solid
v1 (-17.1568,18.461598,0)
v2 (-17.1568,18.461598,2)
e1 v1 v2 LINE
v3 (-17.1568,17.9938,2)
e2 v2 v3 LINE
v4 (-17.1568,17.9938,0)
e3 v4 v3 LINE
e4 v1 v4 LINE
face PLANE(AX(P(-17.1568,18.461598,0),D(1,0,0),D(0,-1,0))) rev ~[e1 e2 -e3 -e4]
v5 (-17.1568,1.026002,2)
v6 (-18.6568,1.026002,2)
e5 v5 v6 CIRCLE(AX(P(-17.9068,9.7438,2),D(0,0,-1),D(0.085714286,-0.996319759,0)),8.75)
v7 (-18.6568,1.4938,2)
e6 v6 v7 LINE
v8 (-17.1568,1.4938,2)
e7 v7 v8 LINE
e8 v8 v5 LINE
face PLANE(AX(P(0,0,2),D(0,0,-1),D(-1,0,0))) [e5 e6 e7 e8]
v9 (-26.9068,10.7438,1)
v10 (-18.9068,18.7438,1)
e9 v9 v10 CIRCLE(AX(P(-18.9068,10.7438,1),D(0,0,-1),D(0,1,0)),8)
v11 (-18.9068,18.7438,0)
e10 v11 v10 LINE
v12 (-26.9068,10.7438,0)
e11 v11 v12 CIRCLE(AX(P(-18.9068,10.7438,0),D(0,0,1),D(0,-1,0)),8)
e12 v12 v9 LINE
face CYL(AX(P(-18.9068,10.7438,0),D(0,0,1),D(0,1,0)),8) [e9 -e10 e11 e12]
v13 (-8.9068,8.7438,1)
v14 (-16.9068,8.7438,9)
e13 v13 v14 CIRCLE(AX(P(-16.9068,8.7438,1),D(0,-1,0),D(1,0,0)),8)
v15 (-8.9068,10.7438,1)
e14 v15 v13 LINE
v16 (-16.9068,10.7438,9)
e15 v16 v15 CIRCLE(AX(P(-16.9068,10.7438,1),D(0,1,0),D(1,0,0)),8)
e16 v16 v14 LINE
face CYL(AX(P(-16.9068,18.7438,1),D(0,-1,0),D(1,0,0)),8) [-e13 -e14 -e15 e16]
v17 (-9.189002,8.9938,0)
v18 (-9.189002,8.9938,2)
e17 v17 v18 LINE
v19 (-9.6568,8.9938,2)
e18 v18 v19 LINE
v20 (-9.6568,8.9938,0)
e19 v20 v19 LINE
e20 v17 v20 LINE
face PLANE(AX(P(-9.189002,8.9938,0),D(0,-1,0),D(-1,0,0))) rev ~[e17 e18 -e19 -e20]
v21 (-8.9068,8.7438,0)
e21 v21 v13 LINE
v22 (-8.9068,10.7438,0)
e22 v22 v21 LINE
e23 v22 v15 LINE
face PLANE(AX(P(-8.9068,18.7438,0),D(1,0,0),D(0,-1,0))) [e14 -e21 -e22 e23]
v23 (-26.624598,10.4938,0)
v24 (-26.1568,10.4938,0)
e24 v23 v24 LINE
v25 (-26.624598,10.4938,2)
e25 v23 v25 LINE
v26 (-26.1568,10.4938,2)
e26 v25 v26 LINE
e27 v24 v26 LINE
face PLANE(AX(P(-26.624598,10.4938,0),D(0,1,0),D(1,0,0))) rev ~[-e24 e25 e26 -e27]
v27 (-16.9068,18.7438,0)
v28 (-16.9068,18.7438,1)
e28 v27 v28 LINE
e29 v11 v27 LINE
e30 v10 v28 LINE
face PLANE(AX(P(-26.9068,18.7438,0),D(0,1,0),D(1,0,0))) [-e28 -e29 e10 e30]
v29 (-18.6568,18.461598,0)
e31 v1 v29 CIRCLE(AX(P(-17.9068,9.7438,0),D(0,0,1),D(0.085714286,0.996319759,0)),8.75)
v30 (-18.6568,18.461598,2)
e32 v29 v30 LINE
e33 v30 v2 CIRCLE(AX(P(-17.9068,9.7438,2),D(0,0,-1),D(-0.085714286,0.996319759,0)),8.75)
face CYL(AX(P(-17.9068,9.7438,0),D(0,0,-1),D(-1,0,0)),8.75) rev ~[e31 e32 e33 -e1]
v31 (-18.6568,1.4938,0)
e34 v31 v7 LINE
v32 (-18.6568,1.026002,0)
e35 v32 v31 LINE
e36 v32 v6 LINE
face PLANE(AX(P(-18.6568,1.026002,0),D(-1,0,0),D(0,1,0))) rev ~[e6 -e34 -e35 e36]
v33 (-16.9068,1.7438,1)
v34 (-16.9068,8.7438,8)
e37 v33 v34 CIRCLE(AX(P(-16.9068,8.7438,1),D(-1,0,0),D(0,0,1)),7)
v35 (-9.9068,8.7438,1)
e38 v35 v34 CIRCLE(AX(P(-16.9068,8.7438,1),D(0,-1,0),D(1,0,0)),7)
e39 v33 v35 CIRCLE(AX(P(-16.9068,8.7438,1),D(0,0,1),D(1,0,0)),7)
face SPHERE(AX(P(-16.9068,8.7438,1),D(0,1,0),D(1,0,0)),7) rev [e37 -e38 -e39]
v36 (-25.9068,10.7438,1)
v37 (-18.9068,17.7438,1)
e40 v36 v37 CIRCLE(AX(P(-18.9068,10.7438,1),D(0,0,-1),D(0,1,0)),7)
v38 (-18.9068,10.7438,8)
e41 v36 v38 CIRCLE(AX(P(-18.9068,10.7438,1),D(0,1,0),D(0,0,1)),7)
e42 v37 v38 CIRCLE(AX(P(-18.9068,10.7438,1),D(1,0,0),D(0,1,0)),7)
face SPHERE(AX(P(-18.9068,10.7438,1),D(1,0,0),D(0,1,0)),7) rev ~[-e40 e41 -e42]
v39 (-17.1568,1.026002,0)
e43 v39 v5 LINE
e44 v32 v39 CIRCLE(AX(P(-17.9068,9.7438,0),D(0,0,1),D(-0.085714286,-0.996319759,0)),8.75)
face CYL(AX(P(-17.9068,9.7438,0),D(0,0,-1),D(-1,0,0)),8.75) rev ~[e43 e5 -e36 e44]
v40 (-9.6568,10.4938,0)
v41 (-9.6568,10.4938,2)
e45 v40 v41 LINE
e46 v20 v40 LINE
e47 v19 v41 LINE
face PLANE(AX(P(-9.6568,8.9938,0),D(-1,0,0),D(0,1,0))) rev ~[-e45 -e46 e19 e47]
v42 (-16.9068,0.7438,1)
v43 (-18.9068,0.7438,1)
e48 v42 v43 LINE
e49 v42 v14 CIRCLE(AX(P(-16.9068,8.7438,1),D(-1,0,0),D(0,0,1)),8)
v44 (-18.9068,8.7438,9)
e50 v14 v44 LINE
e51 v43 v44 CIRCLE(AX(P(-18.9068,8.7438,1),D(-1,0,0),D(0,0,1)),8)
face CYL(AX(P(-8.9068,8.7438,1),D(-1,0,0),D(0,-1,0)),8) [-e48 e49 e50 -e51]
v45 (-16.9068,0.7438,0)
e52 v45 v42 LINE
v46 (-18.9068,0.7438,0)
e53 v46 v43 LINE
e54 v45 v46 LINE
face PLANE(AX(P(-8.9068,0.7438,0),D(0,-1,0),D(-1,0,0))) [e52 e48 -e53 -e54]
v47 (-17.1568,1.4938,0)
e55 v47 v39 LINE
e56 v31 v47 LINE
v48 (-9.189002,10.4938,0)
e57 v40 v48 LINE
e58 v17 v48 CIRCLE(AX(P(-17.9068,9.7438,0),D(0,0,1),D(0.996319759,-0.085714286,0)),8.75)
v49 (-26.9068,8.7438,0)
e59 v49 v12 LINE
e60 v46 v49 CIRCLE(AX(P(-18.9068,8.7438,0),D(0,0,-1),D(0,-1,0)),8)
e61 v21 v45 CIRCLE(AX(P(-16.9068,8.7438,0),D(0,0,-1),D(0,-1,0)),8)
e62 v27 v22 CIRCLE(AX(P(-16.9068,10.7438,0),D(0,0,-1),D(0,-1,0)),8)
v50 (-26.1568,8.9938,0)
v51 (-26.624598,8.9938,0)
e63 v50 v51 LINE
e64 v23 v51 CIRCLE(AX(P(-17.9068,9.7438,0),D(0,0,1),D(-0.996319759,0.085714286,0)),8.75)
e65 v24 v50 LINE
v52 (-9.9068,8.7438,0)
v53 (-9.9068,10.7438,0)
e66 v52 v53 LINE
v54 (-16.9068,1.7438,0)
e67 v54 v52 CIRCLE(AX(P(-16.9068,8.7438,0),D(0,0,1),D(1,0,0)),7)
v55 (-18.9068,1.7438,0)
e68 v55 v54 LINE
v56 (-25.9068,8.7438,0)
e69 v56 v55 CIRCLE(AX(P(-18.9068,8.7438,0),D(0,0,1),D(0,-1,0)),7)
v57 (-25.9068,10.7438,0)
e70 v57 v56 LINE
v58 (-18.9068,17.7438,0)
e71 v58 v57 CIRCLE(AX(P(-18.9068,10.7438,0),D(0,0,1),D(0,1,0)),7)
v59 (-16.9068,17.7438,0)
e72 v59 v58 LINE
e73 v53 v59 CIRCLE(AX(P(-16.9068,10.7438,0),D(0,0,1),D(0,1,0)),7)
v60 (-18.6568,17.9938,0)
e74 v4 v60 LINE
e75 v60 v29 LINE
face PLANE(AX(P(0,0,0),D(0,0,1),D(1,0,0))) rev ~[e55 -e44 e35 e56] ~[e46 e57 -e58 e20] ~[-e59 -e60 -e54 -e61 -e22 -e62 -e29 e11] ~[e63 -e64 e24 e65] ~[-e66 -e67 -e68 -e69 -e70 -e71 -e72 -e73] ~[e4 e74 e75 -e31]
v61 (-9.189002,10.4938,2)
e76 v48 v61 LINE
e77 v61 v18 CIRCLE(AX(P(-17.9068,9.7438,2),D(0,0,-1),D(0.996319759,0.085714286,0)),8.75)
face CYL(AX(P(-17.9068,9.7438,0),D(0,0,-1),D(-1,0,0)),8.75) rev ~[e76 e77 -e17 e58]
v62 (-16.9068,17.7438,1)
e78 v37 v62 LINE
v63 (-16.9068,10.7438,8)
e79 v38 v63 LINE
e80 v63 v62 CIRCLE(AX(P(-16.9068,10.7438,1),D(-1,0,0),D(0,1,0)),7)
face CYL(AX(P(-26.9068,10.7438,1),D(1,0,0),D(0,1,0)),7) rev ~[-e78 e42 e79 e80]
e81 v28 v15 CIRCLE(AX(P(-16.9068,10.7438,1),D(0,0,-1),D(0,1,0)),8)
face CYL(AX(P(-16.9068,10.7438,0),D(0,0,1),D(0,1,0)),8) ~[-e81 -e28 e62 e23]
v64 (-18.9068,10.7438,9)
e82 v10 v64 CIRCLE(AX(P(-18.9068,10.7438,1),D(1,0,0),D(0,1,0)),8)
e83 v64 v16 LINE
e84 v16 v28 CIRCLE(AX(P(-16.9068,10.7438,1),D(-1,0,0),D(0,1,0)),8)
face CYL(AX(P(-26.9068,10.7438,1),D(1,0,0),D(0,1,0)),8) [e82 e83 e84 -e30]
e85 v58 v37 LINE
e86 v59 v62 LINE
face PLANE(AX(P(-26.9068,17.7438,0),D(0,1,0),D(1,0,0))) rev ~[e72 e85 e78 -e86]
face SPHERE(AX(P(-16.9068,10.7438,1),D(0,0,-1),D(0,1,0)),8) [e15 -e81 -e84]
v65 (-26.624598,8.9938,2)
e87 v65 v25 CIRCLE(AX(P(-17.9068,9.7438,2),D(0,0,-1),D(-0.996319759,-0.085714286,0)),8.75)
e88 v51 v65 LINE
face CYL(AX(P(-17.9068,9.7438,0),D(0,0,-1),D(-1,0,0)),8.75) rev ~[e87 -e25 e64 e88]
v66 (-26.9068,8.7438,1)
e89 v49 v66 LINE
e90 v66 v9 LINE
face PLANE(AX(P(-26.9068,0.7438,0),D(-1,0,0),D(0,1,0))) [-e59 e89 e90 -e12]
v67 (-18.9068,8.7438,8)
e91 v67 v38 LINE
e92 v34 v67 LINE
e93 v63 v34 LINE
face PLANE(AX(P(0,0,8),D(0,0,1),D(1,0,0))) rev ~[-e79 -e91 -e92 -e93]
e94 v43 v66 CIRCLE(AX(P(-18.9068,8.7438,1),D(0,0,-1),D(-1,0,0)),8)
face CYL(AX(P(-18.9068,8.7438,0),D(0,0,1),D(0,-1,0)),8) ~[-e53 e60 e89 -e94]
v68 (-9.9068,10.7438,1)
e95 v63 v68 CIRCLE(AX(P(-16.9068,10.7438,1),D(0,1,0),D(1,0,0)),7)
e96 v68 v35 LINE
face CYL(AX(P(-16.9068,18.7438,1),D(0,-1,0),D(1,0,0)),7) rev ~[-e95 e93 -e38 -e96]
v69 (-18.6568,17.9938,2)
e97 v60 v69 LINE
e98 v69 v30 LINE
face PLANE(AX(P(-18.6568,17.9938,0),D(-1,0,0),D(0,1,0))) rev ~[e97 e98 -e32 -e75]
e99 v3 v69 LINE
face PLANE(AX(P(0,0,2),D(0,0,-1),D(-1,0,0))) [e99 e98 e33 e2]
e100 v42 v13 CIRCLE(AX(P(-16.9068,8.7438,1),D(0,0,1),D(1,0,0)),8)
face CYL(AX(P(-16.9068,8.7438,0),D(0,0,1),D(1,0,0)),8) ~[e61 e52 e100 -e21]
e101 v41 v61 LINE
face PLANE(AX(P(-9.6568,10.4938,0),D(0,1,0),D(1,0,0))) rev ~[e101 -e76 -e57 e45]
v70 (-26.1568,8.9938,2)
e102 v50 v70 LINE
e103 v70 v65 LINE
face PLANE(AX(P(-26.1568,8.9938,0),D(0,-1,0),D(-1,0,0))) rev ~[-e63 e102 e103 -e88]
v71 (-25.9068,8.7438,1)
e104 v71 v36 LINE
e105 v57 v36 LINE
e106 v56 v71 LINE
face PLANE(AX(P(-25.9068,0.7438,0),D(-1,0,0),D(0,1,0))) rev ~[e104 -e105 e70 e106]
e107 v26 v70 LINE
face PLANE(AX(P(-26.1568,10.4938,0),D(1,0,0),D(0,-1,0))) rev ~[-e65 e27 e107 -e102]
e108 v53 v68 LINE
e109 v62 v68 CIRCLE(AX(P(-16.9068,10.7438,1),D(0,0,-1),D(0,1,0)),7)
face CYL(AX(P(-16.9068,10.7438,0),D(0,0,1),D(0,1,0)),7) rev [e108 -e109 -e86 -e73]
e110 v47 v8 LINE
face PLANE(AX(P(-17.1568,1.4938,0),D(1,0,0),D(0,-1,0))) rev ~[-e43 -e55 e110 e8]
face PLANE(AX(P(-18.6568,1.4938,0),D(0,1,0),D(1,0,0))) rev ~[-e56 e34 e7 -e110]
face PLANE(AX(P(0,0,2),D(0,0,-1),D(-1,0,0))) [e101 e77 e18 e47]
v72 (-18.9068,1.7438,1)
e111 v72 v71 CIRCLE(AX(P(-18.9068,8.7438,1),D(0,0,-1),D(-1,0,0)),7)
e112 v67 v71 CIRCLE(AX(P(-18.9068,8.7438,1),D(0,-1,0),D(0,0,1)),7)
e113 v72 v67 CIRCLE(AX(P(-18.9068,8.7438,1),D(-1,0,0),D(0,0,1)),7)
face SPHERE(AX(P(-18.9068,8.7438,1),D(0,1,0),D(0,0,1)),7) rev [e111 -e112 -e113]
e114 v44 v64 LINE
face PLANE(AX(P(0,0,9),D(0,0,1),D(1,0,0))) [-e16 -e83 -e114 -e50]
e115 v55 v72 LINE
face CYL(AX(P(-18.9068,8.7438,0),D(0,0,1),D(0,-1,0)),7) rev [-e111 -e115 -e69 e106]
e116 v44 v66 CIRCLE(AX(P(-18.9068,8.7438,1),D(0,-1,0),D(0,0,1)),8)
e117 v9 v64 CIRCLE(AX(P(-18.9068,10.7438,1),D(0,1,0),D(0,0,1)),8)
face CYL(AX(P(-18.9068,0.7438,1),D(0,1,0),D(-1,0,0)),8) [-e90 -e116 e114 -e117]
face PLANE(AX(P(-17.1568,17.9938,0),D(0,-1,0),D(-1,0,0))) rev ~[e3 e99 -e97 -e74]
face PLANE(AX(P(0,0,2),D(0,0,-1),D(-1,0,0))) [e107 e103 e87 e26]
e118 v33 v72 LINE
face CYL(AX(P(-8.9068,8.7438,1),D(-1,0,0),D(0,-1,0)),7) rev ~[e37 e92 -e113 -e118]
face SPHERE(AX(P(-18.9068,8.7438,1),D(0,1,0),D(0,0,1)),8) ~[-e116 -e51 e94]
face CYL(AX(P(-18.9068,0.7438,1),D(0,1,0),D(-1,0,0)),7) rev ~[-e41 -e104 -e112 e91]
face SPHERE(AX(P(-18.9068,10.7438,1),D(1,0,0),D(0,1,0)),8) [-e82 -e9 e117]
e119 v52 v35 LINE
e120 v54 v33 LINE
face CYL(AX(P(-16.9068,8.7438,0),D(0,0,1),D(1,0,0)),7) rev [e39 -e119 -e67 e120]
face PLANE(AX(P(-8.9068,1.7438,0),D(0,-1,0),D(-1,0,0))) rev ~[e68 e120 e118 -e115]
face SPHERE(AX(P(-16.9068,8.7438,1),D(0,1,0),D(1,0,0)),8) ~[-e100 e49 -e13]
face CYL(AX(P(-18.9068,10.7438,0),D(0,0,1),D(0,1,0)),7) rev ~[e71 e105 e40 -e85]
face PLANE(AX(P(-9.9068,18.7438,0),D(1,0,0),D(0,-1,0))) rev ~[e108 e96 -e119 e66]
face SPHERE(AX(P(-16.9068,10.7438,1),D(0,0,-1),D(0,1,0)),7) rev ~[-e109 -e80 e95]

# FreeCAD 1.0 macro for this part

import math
import FreeCAD as App
import Part
import Sketcher
from FreeCAD import Vector


def edges_at(feature, points):
    """Names of the edges that pass closest to the given points."""
    edges = feature.Shape.Edges
    near = lambda p: min(range(len(edges)), key=lambda i: edges[i].distToShape(Part.Vertex(*p))[0])
    return sorted({f"Edge{near(p) + 1}" for p in points})


def faces_at(feature, points):
    """Names of the faces that lie closest to the given points."""
    faces = feature.Shape.Faces
    near = lambda p: min(range(len(faces)), key=lambda i: faces[i].distToShape(Part.Vertex(*p))[0])
    return sorted({f"Face{near(p) + 1}" for p in points})

doc = App.newDocument("Part")
body = doc.addObject("PartDesign::Body", "Body")

# Sketch on XY plane
sketch1 = body.newObject("Sketcher::SketchObject", "Sketch")
sketch1.AttachmentSupport = (doc.getObject("XY_Plane"), [""])
sketch1.MapMode = "FlatFace"
sketch1.addGeometry([
    Part.LineSegment(Vector(-8.9068, 18.7438, 0), Vector(-26.9068, 18.7438, 0)),
    Part.LineSegment(Vector(-26.9068, 18.7438, 0), Vector(-26.9068, 0.7438, 0)),
    Part.LineSegment(Vector(-26.9068, 0.7438, 0), Vector(-8.9068, 0.7438, 0)),
    Part.LineSegment(Vector(-8.9068, 0.7438, 0), Vector(-8.9068, 18.7438, 0)),
], False)
sketch1.addConstraint([
    Sketcher.Constraint("Coincident", 0, 2, 1, 1),
    Sketcher.Constraint("Coincident", 1, 2, 2, 1),
    Sketcher.Constraint("Coincident", 2, 2, 3, 1),
    Sketcher.Constraint("Coincident", 3, 2, 0, 1),
    Sketcher.Constraint("Horizontal", 0),
    Sketcher.Constraint("Vertical", 1),
    Sketcher.Constraint("Horizontal", 2),
    Sketcher.Constraint("Vertical", 3),
    Sketcher.Constraint("Equal", 2, 1),
    Sketcher.Constraint("DistanceX", 0, 2, 0, 1, 18.0),
    Sketcher.Constraint("DistanceX", 0, 2, -1, 1, 26.9068),
    Sketcher.Constraint("DistanceY", -1, 1, 0, 2, 18.7438),
])
pad1 = body.newObject("PartDesign::Pad", "Pad")
pad1.Profile = sketch1
pad1.Length = 9
doc.recompute()

fillet = body.newObject("PartDesign::Fillet", "Fillet")
fillet.Base = (pad1, edges_at(pad1, [
    (-8.907, 18.744, 4.5),
    (-17.907, 18.744, 9),
    (-26.907, 18.744, 4.5),
    (-26.907, 9.744, 9),
    (-8.907, 9.744, 9),
    (-8.907, 0.744, 4.5),
    (-17.907, 0.744, 9),
    (-26.907, 0.744, 4.5),
]))
fillet.Radius = 8
doc.recompute()

thickness = body.newObject("PartDesign::Thickness", "Thickness")
thickness.Base = (fillet, faces_at(fillet, [(-17.573, 12.744, 0)]))
thickness.Value = 1
thickness.Reversed = True
thickness.Join = "Intersection"

# Sketch on XY plane
sketch2 = body.newObject("Sketcher::SketchObject", "Sketch001")
sketch2.AttachmentSupport = (doc.getObject("XY_Plane"), [""])
sketch2.MapMode = "FlatFace"
sketch2.addGeometry([
    Part.ArcOfCircle(Part.Circle(Vector(-17.9068, 9.7438, 0), Vector(0, 0, 1), 8.75), math.radians(85.0829), math.radians(94.9171)),  # 0
    Part.LineSegment(Vector(-17.1568, 18.461598, 0), Vector(-17.1568, 17.9938, 0)),  # 1
    Part.LineSegment(Vector(-17.1568, 17.9938, 0), Vector(-18.6568, 17.9938, 0)),  # 2
    Part.LineSegment(Vector(-18.6568, 17.9938, 0), Vector(-18.6568, 18.461598, 0)),  # 3
    Part.LineSegment(Vector(-9.6568, 10.4938, 0), Vector(-9.189002, 10.4938, 0)),  # 4
    Part.ArcOfCircle(Part.Circle(Vector(-17.9068, 9.7438, 0), Vector(0, 0, 1), 8.75), math.radians(-4.9171), math.radians(4.9171)),  # 5
    Part.LineSegment(Vector(-9.189002, 8.9938, 0), Vector(-9.6568, 8.9938, 0)),  # 6
    Part.LineSegment(Vector(-9.6568, 8.9938, 0), Vector(-9.6568, 10.4938, 0)),  # 7
    Part.ArcOfCircle(Part.Circle(Vector(-17.9068, 9.7438, 0), Vector(0, 0, 1), 8.75), math.radians(175.0829), math.radians(184.9171)),  # 8
    Part.LineSegment(Vector(-26.624598, 10.4938, 0), Vector(-26.1568, 10.4938, 0)),  # 9
    Part.LineSegment(Vector(-26.1568, 10.4938, 0), Vector(-26.1568, 8.9938, 0)),  # 10
    Part.LineSegment(Vector(-26.1568, 8.9938, 0), Vector(-26.624598, 8.9938, 0)),  # 11
    Part.LineSegment(Vector(-17.1568, 1.4938, 0), Vector(-17.1568, 1.026002, 0)),  # 12
    Part.ArcOfCircle(Part.Circle(Vector(-17.9068, 9.7438, 0), Vector(0, 0, 1), 8.75), math.radians(-94.9171), math.radians(-85.0829)),  # 13
    Part.LineSegment(Vector(-18.6568, 1.026002, 0), Vector(-18.6568, 1.4938, 0)),  # 14
    Part.LineSegment(Vector(-18.6568, 1.4938, 0), Vector(-17.1568, 1.4938, 0)),  # 15
], False)
sketch2.addConstraint([
    Sketcher.Constraint("Coincident", 0, 1, 1, 1),
    Sketcher.Constraint("Coincident", 1, 2, 2, 1),
    Sketcher.Constraint("Coincident", 2, 2, 3, 1),
    Sketcher.Constraint("Coincident", 3, 2, 0, 2),
    Sketcher.Constraint("Coincident", 4, 2, 5, 2),
    Sketcher.Constraint("Coincident", 5, 1, 6, 1),
    Sketcher.Constraint("Coincident", 6, 2, 7, 1),
    Sketcher.Constraint("Coincident", 7, 2, 4, 1),
    Sketcher.Constraint("Coincident", 8, 1, 9, 1),
    Sketcher.Constraint("Coincident", 9, 2, 10, 1),
    Sketcher.Constraint("Coincident", 10, 2, 11, 1),
    Sketcher.Constraint("Coincident", 11, 2, 8, 2),
    Sketcher.Constraint("Coincident", 12, 2, 13, 2),
    Sketcher.Constraint("Coincident", 13, 1, 14, 1),
    Sketcher.Constraint("Coincident", 14, 2, 15, 1),
    Sketcher.Constraint("Coincident", 15, 2, 12, 1),
    Sketcher.Constraint("Vertical", 1),
    Sketcher.Constraint("Horizontal", 2),
    Sketcher.Constraint("Vertical", 3),
    Sketcher.Constraint("Horizontal", 4),
    Sketcher.Constraint("Horizontal", 6),
    Sketcher.Constraint("Vertical", 7),
    Sketcher.Constraint("Horizontal", 9),
    Sketcher.Constraint("Vertical", 10),
    Sketcher.Constraint("Horizontal", 11),
    Sketcher.Constraint("Vertical", 12),
    Sketcher.Constraint("Vertical", 14),
    Sketcher.Constraint("Horizontal", 15),
    Sketcher.Constraint("Coincident", 5, 3, 0, 3),
    Sketcher.Constraint("Coincident", 8, 3, 0, 3),
    Sketcher.Constraint("Coincident", 13, 3, 0, 3),
    Sketcher.Constraint("Equal", 0, 5),
    Sketcher.Constraint("Equal", 5, 8),
    Sketcher.Constraint("Equal", 8, 13),
    Sketcher.Constraint("Horizontal", 0, 1, 3, 2),
    Sketcher.Constraint("Horizontal", 7, 2, 8, 1),
    Sketcher.Constraint("Horizontal", 6, 2, 10, 2),
    Sketcher.Constraint("Horizontal", 12, 2, 13, 1),
    Sketcher.Constraint("Vertical", 4, 2, 5, 1),
    Sketcher.Constraint("Vertical", 1, 2, 12, 2),
    Sketcher.Constraint("Equal", 6, 9),
    Sketcher.Constraint("Equal", 11, 1),
    Sketcher.Constraint("Equal", 15, 7),
    Sketcher.Constraint("Equal", 3, 12),
    Sketcher.Constraint("Radius", 0, 8.75),
    Sketcher.Constraint("DistanceX", 2, 2, 2, 1, 1.5),
    Sketcher.Constraint("DistanceY", 4, 2, 1, 2, 7.5),
    Sketcher.Constraint("DistanceX", 4, 2, -1, 1, 9.189),
    Sketcher.Constraint("DistanceY", -1, 1, 12, 2, 1.026),
])
pocket1 = body.newObject("PartDesign::Pocket", "Pocket")
pocket1.Profile = sketch2
pocket1.Length = 2
pocket1.Reversed = True

doc.recompute()
